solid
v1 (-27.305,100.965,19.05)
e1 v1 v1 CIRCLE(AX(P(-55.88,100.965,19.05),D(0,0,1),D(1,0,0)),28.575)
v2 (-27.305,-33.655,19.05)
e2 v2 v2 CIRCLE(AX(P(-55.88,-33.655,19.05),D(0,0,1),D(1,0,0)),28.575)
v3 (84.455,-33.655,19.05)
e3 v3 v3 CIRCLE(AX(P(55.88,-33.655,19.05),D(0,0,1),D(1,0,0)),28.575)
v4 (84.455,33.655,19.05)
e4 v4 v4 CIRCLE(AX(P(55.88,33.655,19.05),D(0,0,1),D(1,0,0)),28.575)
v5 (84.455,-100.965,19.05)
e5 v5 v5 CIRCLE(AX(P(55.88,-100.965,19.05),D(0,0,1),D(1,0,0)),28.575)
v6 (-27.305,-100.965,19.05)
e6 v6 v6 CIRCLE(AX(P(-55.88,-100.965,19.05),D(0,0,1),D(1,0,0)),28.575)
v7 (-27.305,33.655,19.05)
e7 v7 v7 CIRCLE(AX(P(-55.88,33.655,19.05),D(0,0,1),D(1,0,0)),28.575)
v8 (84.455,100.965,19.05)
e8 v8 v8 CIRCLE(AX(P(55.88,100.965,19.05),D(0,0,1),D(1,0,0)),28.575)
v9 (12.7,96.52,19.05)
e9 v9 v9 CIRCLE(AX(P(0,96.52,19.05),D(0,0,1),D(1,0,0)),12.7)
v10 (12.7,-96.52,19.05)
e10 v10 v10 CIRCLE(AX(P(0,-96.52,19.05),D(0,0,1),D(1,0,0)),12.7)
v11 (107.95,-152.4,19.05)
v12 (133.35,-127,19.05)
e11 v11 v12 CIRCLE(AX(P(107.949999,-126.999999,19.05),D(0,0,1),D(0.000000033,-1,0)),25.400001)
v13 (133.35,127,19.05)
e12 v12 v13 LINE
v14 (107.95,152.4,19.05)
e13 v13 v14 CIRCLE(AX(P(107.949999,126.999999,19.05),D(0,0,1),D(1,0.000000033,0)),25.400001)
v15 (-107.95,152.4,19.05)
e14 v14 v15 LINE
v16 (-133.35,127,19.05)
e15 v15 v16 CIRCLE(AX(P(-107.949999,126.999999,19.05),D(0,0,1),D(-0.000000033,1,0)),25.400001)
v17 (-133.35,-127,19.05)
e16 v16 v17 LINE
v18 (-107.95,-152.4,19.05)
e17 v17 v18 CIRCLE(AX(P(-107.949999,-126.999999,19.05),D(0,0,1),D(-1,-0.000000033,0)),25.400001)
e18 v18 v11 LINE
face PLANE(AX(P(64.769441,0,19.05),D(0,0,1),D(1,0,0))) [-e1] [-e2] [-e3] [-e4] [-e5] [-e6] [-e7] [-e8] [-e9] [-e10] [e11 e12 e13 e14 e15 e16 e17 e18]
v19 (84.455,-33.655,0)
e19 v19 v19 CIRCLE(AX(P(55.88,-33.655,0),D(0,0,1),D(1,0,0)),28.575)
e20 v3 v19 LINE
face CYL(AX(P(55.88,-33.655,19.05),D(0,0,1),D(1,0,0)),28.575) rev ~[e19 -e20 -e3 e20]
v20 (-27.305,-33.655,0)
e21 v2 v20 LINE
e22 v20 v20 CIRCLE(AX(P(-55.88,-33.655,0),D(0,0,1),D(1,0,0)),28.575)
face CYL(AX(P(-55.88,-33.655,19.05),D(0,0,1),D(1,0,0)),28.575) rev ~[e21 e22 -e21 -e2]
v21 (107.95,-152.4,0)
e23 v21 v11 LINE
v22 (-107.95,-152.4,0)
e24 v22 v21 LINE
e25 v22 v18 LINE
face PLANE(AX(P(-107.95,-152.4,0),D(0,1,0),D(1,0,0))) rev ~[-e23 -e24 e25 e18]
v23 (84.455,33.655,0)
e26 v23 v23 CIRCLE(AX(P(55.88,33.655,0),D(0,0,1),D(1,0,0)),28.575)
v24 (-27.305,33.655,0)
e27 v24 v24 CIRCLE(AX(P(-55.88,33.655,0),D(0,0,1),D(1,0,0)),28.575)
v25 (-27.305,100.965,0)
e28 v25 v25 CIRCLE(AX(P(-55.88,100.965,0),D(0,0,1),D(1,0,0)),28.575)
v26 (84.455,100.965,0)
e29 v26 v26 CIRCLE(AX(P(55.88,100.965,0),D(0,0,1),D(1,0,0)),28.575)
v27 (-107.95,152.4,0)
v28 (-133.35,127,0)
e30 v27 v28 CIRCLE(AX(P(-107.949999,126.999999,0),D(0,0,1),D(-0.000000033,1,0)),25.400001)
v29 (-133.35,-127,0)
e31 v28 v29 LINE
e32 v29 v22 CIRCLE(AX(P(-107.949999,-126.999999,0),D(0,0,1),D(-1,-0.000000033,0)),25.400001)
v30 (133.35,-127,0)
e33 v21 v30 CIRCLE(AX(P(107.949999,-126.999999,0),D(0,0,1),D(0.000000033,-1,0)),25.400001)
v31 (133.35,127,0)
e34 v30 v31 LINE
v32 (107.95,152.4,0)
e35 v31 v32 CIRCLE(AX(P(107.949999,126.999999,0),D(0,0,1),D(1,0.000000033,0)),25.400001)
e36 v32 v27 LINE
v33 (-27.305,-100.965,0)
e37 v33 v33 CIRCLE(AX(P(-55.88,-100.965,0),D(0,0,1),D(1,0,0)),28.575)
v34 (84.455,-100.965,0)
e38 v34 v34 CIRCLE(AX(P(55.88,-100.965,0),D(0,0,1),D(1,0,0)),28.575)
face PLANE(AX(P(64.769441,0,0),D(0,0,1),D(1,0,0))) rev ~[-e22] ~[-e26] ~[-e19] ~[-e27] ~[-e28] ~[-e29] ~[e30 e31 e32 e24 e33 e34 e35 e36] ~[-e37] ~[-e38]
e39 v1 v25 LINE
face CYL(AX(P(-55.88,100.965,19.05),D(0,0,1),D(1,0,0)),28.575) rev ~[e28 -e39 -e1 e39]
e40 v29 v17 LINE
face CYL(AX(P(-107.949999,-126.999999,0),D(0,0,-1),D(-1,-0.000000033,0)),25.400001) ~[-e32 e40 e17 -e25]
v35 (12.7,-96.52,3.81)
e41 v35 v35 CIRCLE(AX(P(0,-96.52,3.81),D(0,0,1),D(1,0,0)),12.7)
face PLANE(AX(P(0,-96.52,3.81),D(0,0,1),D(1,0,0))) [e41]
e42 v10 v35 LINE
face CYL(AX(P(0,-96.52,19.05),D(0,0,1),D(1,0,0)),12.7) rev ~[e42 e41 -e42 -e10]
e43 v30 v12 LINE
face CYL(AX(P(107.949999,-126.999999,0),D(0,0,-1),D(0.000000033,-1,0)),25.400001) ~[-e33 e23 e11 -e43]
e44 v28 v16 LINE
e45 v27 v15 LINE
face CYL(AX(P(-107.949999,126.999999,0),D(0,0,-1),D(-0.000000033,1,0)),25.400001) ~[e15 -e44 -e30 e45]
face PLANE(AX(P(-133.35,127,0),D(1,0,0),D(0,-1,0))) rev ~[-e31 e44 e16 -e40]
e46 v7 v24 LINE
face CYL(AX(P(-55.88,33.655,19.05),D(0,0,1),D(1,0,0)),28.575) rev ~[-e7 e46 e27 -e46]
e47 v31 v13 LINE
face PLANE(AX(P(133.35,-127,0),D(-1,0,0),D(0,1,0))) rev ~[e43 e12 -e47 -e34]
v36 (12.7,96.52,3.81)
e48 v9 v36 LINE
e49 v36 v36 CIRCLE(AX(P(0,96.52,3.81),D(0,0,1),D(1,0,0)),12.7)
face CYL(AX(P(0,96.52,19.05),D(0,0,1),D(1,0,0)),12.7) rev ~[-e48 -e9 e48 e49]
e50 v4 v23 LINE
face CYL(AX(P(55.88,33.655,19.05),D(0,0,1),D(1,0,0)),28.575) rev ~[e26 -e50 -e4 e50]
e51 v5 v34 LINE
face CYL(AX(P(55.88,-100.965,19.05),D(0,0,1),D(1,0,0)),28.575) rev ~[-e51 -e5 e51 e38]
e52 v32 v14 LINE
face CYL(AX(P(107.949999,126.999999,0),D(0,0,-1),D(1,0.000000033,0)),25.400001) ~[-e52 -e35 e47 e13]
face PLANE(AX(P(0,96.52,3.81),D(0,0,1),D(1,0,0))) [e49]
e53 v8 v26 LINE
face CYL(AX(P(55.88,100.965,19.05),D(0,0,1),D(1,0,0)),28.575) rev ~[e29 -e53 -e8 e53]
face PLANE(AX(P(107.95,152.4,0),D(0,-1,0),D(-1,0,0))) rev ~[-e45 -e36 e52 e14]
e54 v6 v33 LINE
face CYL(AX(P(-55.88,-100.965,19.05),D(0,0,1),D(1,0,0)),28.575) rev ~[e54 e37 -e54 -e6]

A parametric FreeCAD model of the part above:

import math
import FreeCAD as App
import Part
import Sketcher
from FreeCAD import Vector
Q = App.Units.Quantity

doc = App.newDocument("Part")
body = doc.addObject("PartDesign::Body", "Body")

# Sketch on XY plane
sketch1 = body.newObject("Sketcher::SketchObject", "Sketch")
sketch1.AttachmentSupport = (doc.getObject("XY_Plane"), [""])
sketch1.MapMode = "FlatFace"
sketch1.addGeometry([
    Part.ArcOfCircle(Part.Circle(Vector(107.949999, 126.999999, 0), Vector(0, 0, 1), 25.400001), math.radians(0.000002), math.radians(89.999998)),  # 0
    Part.LineSegment(Vector(107.95, 152.4, 0), Vector(-107.95, 152.4, 0)),  # 1
    Part.ArcOfCircle(Part.Circle(Vector(-107.949999, 126.999999, 0), Vector(0, 0, 1), 25.400001), math.radians(90.000002), math.radians(179.999998)),  # 2
    Part.LineSegment(Vector(-133.35, 127, 0), Vector(-133.35, -127, 0)),  # 3
    Part.ArcOfCircle(Part.Circle(Vector(-107.949999, -126.999999, 0), Vector(0, 0, 1), 25.400001), math.radians(-179.999998), math.radians(-90.000002)),  # 4
    Part.LineSegment(Vector(-107.95, -152.4, 0), Vector(107.95, -152.4, 0)),  # 5
    Part.ArcOfCircle(Part.Circle(Vector(107.949999, -126.999999, 0), Vector(0, 0, 1), 25.400001), math.radians(-89.999998), math.radians(-0.000002)),  # 6
    Part.LineSegment(Vector(133.35, -127, 0), Vector(133.35, 127, 0)),  # 7
], False)
sketch1.addConstraint([
    Sketcher.Constraint("Tangent", 0, 2, 1, 1),
    Sketcher.Constraint("Tangent", 1, 2, 2, 1),
    Sketcher.Constraint("Tangent", 2, 2, 3, 1),
    Sketcher.Constraint("Tangent", 3, 2, 4, 1),
    Sketcher.Constraint("Tangent", 4, 2, 5, 1),
    Sketcher.Constraint("Tangent", 5, 2, 6, 1),
    Sketcher.Constraint("Tangent", 6, 2, 7, 1),
    Sketcher.Constraint("Tangent", 7, 2, 0, 1),
    Sketcher.Constraint("Horizontal", 1),
    Sketcher.Constraint("Vertical", 3),
    Sketcher.Constraint("Horizontal", 5),
    Sketcher.Constraint("Vertical", 7),
    Sketcher.Constraint("Equal", 0, 2),
    Sketcher.Constraint("Equal", 2, 4),
    Sketcher.Constraint("Equal", 4, 6),
    Sketcher.Constraint("Symmetric", 0, 3, 4, 3, -1, 1),
    Sketcher.Constraint("Radius", 0, Q("1 in")),
    Sketcher.Constraint("DistanceY", 3, 2, 3, 1, Q("10 in")),
    Sketcher.Constraint("DistanceX", 1, 2, 1, 1, Q("8.5 in")),
])
pad1 = body.newObject("PartDesign::Pad", "Pad")
pad1.Profile = sketch1
pad1.Length = Q("0.75 in")

# Sketch on XY plane
sketch2 = body.newObject("Sketcher::SketchObject", "Sketch001")
sketch2.AttachmentSupport = (doc.getObject("XY_Plane"), [""])
sketch2.MapMode = "FlatFace"
sketch2.AttachmentOffset = App.Placement(Vector(0, 0, 0.75 * 25.4), App.Rotation())
sketch2.addGeometry([
    Part.Circle(Vector(-55.88, 100.965, 0), Vector(0, 0, 1), 28.575),  # 0
    Part.Circle(Vector(-55.88, 33.655, 0), Vector(0, 0, 1), 28.575),  # 1
    Part.Circle(Vector(-55.88, -33.655, 0), Vector(0, 0, 1), 28.575),  # 2
    Part.Circle(Vector(-55.88, -100.965, 0), Vector(0, 0, 1), 28.575),  # 3
    Part.Circle(Vector(55.88, -100.965, 0), Vector(0, 0, 1), 28.575),  # 4
    Part.Circle(Vector(55.88, -33.655, 0), Vector(0, 0, 1), 28.575),  # 5
    Part.Circle(Vector(55.88, 33.655, 0), Vector(0, 0, 1), 28.575),  # 6
    Part.Circle(Vector(55.88, 100.965, 0), Vector(0, 0, 1), 28.575),  # 7
], False)
sketch2.addConstraint([
    Sketcher.Constraint("Equal", 0, 1),
    Sketcher.Constraint("Equal", 1, 2),
    Sketcher.Constraint("Equal", 2, 3),
    Sketcher.Constraint("Equal", 3, 4),
    Sketcher.Constraint("Equal", 4, 5),
    Sketcher.Constraint("Equal", 5, 6),
    Sketcher.Constraint("Equal", 6, 7),
    Sketcher.Constraint("Symmetric", 0, 3, 4, 3, -1, 1),
    Sketcher.Constraint("Symmetric", 1, 3, 5, 3, -1, 1),
    Sketcher.Constraint("Symmetric", 2, 3, 6, 3, -1, 1),
    Sketcher.Constraint("Symmetric", 3, 3, 7, 3, -1, 1),
    Sketcher.Constraint("Symmetric", 3, 3, 4, 3, -2),
    Sketcher.Constraint("Symmetric", 2, 3, 5, 3, -2),
    Sketcher.Constraint("Vertical", 0, 3, 1, 3),
    Sketcher.Constraint("Diameter", 0, Q("2.25 in")),
    Sketcher.Constraint("DistanceX", 0, 3, -1, 1, Q("2.2 in")),
    Sketcher.Constraint("DistanceY", 2, 3, 0, 3, Q("5.3 in")),
    Sketcher.Constraint("DistanceY", 1, 3, 0, 3, Q("2.65 in")),
])
pocket1 = body.newObject("PartDesign::Pocket", "Pocket")
pocket1.Profile = sketch2
pocket1.Type = "ThroughAll"

# Sketch on XY plane
sketch3 = body.newObject("Sketcher::SketchObject", "Sketch002")
sketch3.AttachmentSupport = (doc.getObject("XY_Plane"), [""])
sketch3.MapMode = "FlatFace"
sketch3.AttachmentOffset = App.Placement(Vector(0, 0, 0.75 * 25.4), App.Rotation())
sketch3.addGeometry([
    Part.Circle(Vector(0, 96.52, 0), Vector(0, 0, 1), 12.7),
    Part.Circle(Vector(0, -96.52, 0), Vector(0, 0, 1), 12.7),
], False)
sketch3.addConstraint([
    Sketcher.Constraint("Equal", 0, 1),
    Sketcher.Constraint("Symmetric", 0, 3, 1, 3, -1, 1),
    Sketcher.Constraint("PointOnObject", 0, 3, -2),
    Sketcher.Constraint("Diameter", 0, Q("1 in")),
    Sketcher.Constraint("DistanceY", -1, 1, 0, 3, Q("3.8 in")),
])
pocket2 = body.newObject("PartDesign::Pocket", "Pocket001")
pocket2.Profile = sketch3
pocket2.Length = Q("0.6 in")

doc.recompute()
